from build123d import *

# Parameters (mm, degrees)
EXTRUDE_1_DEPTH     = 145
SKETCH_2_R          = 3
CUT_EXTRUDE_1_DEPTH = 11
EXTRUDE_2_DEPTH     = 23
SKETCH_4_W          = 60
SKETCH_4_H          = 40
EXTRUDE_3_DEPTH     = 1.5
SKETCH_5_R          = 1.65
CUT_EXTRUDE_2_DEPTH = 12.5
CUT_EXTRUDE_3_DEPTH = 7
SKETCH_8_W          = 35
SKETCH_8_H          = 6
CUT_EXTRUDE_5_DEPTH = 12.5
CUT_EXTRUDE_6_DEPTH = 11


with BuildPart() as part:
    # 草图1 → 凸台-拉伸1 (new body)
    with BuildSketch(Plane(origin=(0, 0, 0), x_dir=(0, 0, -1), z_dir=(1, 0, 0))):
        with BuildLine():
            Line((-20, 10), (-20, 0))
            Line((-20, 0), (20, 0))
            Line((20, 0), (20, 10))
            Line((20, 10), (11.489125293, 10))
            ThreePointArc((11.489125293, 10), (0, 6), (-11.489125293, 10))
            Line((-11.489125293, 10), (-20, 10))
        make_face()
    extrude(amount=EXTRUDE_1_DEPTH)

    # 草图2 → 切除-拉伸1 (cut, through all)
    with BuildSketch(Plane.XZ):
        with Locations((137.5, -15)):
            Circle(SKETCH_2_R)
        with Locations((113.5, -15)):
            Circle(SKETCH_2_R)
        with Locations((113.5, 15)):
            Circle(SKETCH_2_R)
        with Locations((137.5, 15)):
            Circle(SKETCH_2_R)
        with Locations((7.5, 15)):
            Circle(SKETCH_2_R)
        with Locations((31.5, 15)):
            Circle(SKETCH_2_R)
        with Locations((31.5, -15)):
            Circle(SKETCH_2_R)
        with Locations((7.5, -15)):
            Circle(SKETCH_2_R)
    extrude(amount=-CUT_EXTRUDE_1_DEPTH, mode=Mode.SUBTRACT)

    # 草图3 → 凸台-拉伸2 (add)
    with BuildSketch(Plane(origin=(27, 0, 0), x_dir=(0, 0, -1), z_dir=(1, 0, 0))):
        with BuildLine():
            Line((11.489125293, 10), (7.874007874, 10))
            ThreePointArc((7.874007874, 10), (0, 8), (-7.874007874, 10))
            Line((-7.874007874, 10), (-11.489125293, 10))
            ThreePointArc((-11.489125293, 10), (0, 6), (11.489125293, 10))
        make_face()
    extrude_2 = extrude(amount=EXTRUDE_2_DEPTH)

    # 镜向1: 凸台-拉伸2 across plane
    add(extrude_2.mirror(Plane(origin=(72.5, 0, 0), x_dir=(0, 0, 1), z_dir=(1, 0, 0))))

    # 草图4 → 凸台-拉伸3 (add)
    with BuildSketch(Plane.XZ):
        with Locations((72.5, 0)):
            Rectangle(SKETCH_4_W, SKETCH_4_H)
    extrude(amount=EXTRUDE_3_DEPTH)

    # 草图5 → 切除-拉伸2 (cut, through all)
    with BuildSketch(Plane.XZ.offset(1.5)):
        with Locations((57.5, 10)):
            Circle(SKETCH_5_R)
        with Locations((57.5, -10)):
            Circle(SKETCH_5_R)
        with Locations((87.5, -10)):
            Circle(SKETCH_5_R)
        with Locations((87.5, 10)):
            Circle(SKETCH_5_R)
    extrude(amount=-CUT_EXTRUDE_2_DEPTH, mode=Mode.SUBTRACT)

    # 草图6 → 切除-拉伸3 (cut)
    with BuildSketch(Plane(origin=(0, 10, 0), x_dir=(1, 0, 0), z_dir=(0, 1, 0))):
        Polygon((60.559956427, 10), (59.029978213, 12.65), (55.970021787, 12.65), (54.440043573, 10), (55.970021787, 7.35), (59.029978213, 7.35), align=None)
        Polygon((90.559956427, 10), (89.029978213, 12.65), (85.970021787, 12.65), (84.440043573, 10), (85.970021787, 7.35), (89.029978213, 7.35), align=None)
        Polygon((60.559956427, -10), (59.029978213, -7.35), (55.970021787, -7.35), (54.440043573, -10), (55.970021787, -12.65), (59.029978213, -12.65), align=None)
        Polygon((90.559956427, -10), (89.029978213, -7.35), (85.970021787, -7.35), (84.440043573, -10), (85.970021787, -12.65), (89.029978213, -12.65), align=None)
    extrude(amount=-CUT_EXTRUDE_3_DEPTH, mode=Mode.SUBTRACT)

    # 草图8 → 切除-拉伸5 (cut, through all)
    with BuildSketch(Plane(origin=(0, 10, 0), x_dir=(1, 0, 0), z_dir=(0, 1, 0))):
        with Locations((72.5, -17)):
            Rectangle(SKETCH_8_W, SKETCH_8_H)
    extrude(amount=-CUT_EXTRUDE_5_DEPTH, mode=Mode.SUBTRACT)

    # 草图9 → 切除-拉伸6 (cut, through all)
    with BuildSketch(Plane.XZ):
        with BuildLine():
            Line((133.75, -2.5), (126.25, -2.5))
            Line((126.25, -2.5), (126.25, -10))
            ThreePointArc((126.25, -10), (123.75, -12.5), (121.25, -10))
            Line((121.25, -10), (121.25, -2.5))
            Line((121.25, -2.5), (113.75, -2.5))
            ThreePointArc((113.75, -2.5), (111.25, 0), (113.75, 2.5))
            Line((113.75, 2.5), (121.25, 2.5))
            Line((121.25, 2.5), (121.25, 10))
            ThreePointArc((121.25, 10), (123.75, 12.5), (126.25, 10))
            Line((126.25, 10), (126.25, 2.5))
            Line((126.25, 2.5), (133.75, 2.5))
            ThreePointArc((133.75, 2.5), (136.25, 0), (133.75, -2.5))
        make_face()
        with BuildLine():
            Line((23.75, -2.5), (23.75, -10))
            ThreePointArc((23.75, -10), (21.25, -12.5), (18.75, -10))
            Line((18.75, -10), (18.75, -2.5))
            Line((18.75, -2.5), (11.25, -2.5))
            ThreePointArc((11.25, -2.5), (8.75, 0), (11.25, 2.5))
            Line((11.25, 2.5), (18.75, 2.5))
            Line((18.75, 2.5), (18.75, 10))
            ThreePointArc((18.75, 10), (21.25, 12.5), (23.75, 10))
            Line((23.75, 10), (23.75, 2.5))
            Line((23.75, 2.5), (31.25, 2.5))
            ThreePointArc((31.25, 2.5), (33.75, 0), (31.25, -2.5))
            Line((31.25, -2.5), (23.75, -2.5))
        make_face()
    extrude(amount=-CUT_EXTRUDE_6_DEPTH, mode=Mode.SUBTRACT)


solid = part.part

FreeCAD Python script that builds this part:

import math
import FreeCAD as App
import Part
import Sketcher
Q = App.Units.Quantity


def add_polygon(sketch, points):
    """Adds a closed chain of lines whose ends are joined by coincident constraints."""
    first, n = sketch.GeometryCount, len(points)
    for a, b in zip(points, points[1:] + points[:1]):
        sketch.addGeometry(Part.LineSegment(App.Vector(*a, 0), App.Vector(*b, 0)), False)
    for i in range(n):
        sketch.addConstraint(Sketcher.Constraint("Coincident", first + i, 2, first + (i + 1) % n, 1))

doc = App.newDocument("Part")
body = doc.addObject("PartDesign::Body", "Body")

# Sketch on YZ plane
sketch1 = doc.addObject("Sketcher::SketchObject", "Sketch")
body.addObject(sketch1)
sketch1.AttachmentSupport = (doc.YZ_Plane, [""])
sketch1.MapMode = "FlatFace"
sketch1.addGeometry(Part.LineSegment(App.Vector(10, 20, 0), App.Vector(0, 20, 0)), False)
sketch1.addGeometry(Part.LineSegment(App.Vector(0, 20, 0), App.Vector(0, -20, 0)), False)
sketch1.addGeometry(Part.LineSegment(App.Vector(0, -20, 0), App.Vector(10, -20, 0)), False)
sketch1.addGeometry(Part.LineSegment(App.Vector(10, -20, 0), App.Vector(10, -11.489125, 0)), False)
sketch1.addGeometry(Part.ArcOfCircle(Part.Circle(App.Vector(24.5, 0, 0), App.Vector(0, 0, 1), 18.5), math.radians(141.608333), math.radians(218.391667)), False)
sketch1.addGeometry(Part.LineSegment(App.Vector(10, 11.489125, 0), App.Vector(10, 20, 0)), False)
sketch1.addConstraint(Sketcher.Constraint("Coincident", 0, 2, 1, 1))
sketch1.addConstraint(Sketcher.Constraint("Coincident", 1, 2, 2, 1))
sketch1.addConstraint(Sketcher.Constraint("Coincident", 2, 2, 3, 1))
sketch1.addConstraint(Sketcher.Constraint("Coincident", 3, 2, 4, 2))
sketch1.addConstraint(Sketcher.Constraint("Coincident", 4, 1, 5, 1))
sketch1.addConstraint(Sketcher.Constraint("Coincident", 5, 2, 0, 1))
sketch1.addConstraint(Sketcher.Constraint("Horizontal", 0))
sketch1.addConstraint(Sketcher.Constraint("Vertical", 1))
sketch1.addConstraint(Sketcher.Constraint("Horizontal", 2))
sketch1.addConstraint(Sketcher.Constraint("Vertical", 3))
sketch1.addConstraint(Sketcher.Constraint("Vertical", 5))
sketch1.addConstraint(Sketcher.Constraint("Symmetric", 0, 2, 1, 2, -1, 1))
sketch1.addConstraint(Sketcher.Constraint("Symmetric", 3, 2, 4, 1, -1))
sketch1.addConstraint(Sketcher.Constraint("Radius", 4, Q("18.5 mm")))
sketch1.addConstraint(Sketcher.Constraint("DistanceX", 0, 2, 0, 1, Q("10 mm")))
sketch1.addConstraint(Sketcher.Constraint("DistanceY", 1, 2, 1, 1, Q("40 mm")))
sketch1.addConstraint(Sketcher.Constraint("DistanceX", -1, 1, 4, 3, Q("24.5 mm")))
pad1 = doc.addObject("PartDesign::Pad", "Pad")
body.addObject(pad1)
pad1.Profile = sketch1
pad1.Length = 145

# Sketch on XZ plane
sketch2 = doc.addObject("Sketcher::SketchObject", "Sketch001")
body.addObject(sketch2)
sketch2.AttachmentSupport = (doc.XZ_Plane, [""])
sketch2.MapMode = "FlatFace"
sketch2.addGeometry(Part.Circle(App.Vector(137.5, -15, 0), App.Vector(0, 0, 1), 3), False)
sketch2.addGeometry(Part.Circle(App.Vector(113.5, -15, 0), App.Vector(0, 0, 1), 3), False)
sketch2.addGeometry(Part.Circle(App.Vector(113.5, 15, 0), App.Vector(0, 0, 1), 3), False)
sketch2.addGeometry(Part.Circle(App.Vector(137.5, 15, 0), App.Vector(0, 0, 1), 3), False)
sketch2.addGeometry(Part.Circle(App.Vector(7.5, 15, 0), App.Vector(0, 0, 1), 3), False)
sketch2.addGeometry(Part.Circle(App.Vector(31.5, 15, 0), App.Vector(0, 0, 1), 3), False)
sketch2.addGeometry(Part.Circle(App.Vector(31.5, -15, 0), App.Vector(0, 0, 1), 3), False)
sketch2.addGeometry(Part.Circle(App.Vector(7.5, -15, 0), App.Vector(0, 0, 1), 3), False)
sketch2.addConstraint(Sketcher.Constraint("Equal", 0, 1))
sketch2.addConstraint(Sketcher.Constraint("Equal", 1, 2))
sketch2.addConstraint(Sketcher.Constraint("Equal", 2, 3))
sketch2.addConstraint(Sketcher.Constraint("Equal", 3, 4))
sketch2.addConstraint(Sketcher.Constraint("Equal", 4, 5))
sketch2.addConstraint(Sketcher.Constraint("Equal", 5, 6))
sketch2.addConstraint(Sketcher.Constraint("Equal", 6, 7))
sketch2.addConstraint(Sketcher.Constraint("Symmetric", 1, 3, 2, 3, -1))
sketch2.addConstraint(Sketcher.Constraint("Symmetric", 0, 3, 3, 3, -1))
sketch2.addConstraint(Sketcher.Constraint("Symmetric", 5, 3, 6, 3, -1))
sketch2.addConstraint(Sketcher.Constraint("Symmetric", 4, 3, 7, 3, -1))
sketch2.addConstraint(Sketcher.Constraint("Horizontal", 0, 3, 1, 3))
sketch2.addConstraint(Sketcher.Constraint("Horizontal", 3, 3, 4, 3))
sketch2.addConstraint(Sketcher.Constraint("Horizontal", 4, 3, 5, 3))
sketch2.addConstraint(Sketcher.Constraint("Diameter", 0, Q("6 mm")))
sketch2.addConstraint(Sketcher.Constraint("DistanceY", 0, 3, -1, 1, Q("15 mm")))
sketch2.addConstraint(Sketcher.Constraint("DistanceX", 1, 3, 0, 3, Q("24 mm")))
sketch2.addConstraint(Sketcher.Constraint("DistanceX", 4, 3, 2, 3, Q("106 mm")))
sketch2.addConstraint(Sketcher.Constraint("DistanceX", 4, 3, 5, 3, Q("24 mm")))
sketch2.addConstraint(Sketcher.Constraint("DistanceX", -1, 1, 0, 3, Q("137.5 mm")))
pocket1 = doc.addObject("PartDesign::Pocket", "Pocket")
body.addObject(pocket1)
pocket1.Profile = sketch2
pocket1.Type = "ThroughAll"

# Sketch on YZ plane
sketch3 = doc.addObject("Sketcher::SketchObject", "Sketch002")
body.addObject(sketch3)
sketch3.AttachmentSupport = (doc.YZ_Plane, [""])
sketch3.MapMode = "FlatFace"
sketch3.AttachmentOffset = App.Placement(App.Vector(0, 0, 27), App.Rotation())
sketch3.addGeometry(Part.LineSegment(App.Vector(10, -11.489125, 0), App.Vector(10, -7.874008, 0)), False)
sketch3.addGeometry(Part.ArcOfCircle(Part.Circle(App.Vector(24.5, 0, 0), App.Vector(0, 0, 1), 16.5), math.radians(151.49649), math.radians(208.50351)), False)
sketch3.addGeometry(Part.LineSegment(App.Vector(10, 7.874008, 0), App.Vector(10, 11.489125, 0)), False)
sketch3.addGeometry(Part.ArcOfCircle(Part.Circle(App.Vector(24.5, 0, 0), App.Vector(0, 0, 1), 18.5), math.radians(141.608333), math.radians(218.391667)), False)
sketch3.addConstraint(Sketcher.Constraint("Coincident", 0, 2, 1, 2))
sketch3.addConstraint(Sketcher.Constraint("Coincident", 1, 1, 2, 1))
sketch3.addConstraint(Sketcher.Constraint("Coincident", 2, 2, 3, 1))
sketch3.addConstraint(Sketcher.Constraint("Coincident", 3, 2, 0, 1))
sketch3.addConstraint(Sketcher.Constraint("Vertical", 0))
sketch3.addConstraint(Sketcher.Constraint("Vertical", 2))
sketch3.addConstraint(Sketcher.Constraint("Coincident", 3, 3, 1, 3))
sketch3.addConstraint(Sketcher.Constraint("Symmetric", 0, 2, 1, 1, -1))
sketch3.addConstraint(Sketcher.Constraint("Radius", 1, Q("16.5 mm")))
sketch3.addConstraint(Sketcher.Constraint("Radius", 3, Q("18.5 mm")))
sketch3.addConstraint(Sketcher.Constraint("DistanceX", -1, 1, 0, 2, Q("10 mm")))
sketch3.addConstraint(Sketcher.Constraint("DistanceX", -1, 1, 1, 3, Q("24.5 mm")))
pad2 = doc.addObject("PartDesign::Pad", "Pad001")
body.addObject(pad2)
pad2.Profile = sketch3
pad2.Length = 23
doc.recompute()

datumplane = doc.addObject("PartDesign::Plane", "DatumPlane")
body.addObject(datumplane)
datumplane.AttachmentSupport = (doc.YZ_Plane, [""])
datumplane.MapMode = "FlatFace"
datumplane.AttachmentOffset = App.Placement(App.Vector(0, 0, 72.5), App.Rotation())
mirrored = doc.addObject("PartDesign::Mirrored", "Mirrored")
body.addObject(mirrored)
mirrored.Originals = [pad2]
mirrored.MirrorPlane = (datumplane, [""])
body.Tip = mirrored

# Sketch on XZ plane
sketch4 = doc.addObject("Sketcher::SketchObject", "Sketch003")
body.addObject(sketch4)
sketch4.AttachmentSupport = (doc.XZ_Plane, [""])
sketch4.MapMode = "FlatFace"
add_polygon(sketch4, [(42.5, 20), (42.5, -20), (102.5, -20), (102.5, 20)])  # lines 0-3
sketch4.addConstraint(Sketcher.Constraint("Vertical", 0))
sketch4.addConstraint(Sketcher.Constraint("Horizontal", 1))
sketch4.addConstraint(Sketcher.Constraint("Vertical", 2))
sketch4.addConstraint(Sketcher.Constraint("Horizontal", 3))
sketch4.addConstraint(Sketcher.Constraint("DistanceX", 1, 1, 1, 2, Q("60 mm")))
sketch4.addConstraint(Sketcher.Constraint("DistanceY", 0, 2, 0, 1, Q("40 mm")))
sketch4.addConstraint(Sketcher.Constraint("DistanceY", 0, 2, -1, 1, Q("20 mm")))
sketch4.addConstraint(Sketcher.Constraint("DistanceX", -1, 1, 0, 2, Q("42.5 mm")))
pad3 = doc.addObject("PartDesign::Pad", "Pad002")
body.addObject(pad3)
pad3.Profile = sketch4
pad3.Length = 1.5

# Sketch on XZ plane
sketch5 = doc.addObject("Sketcher::SketchObject", "Sketch004")
body.addObject(sketch5)
sketch5.AttachmentSupport = (doc.XZ_Plane, [""])
sketch5.MapMode = "FlatFace"
sketch5.AttachmentOffset = App.Placement(App.Vector(0, 0, 1.5), App.Rotation())
sketch5.addGeometry(Part.Circle(App.Vector(57.5, 10, 0), App.Vector(0, 0, 1), 1.65), False)
sketch5.addGeometry(Part.Circle(App.Vector(57.5, -10, 0), App.Vector(0, 0, 1), 1.65), False)
sketch5.addGeometry(Part.Circle(App.Vector(87.5, -10, 0), App.Vector(0, 0, 1), 1.65), False)
sketch5.addGeometry(Part.Circle(App.Vector(87.5, 10, 0), App.Vector(0, 0, 1), 1.65), False)
sketch5.addConstraint(Sketcher.Constraint("Equal", 0, 1))
sketch5.addConstraint(Sketcher.Constraint("Equal", 1, 2))
sketch5.addConstraint(Sketcher.Constraint("Equal", 2, 3))
sketch5.addConstraint(Sketcher.Constraint("Symmetric", 0, 3, 1, 3, -1))
sketch5.addConstraint(Sketcher.Constraint("Symmetric", 2, 3, 3, 3, -1))
sketch5.addConstraint(Sketcher.Constraint("Horizontal", 1, 3, 2, 3))
sketch5.addConstraint(Sketcher.Constraint("Diameter", 0, Q("3.3 mm")))
sketch5.addConstraint(Sketcher.Constraint("DistanceY", -1, 1, 0, 3, Q("10 mm")))
sketch5.addConstraint(Sketcher.Constraint("DistanceX", 1, 3, 2, 3, Q("30 mm")))
sketch5.addConstraint(Sketcher.Constraint("DistanceX", -1, 1, 0, 3, Q("57.5 mm")))
pocket2 = doc.addObject("PartDesign::Pocket", "Pocket001")
body.addObject(pocket2)
pocket2.Profile = sketch5
pocket2.Type = "ThroughAll"

# Sketch on XZ plane
sketch6 = doc.addObject("Sketcher::SketchObject", "Sketch005")
body.addObject(sketch6)
sketch6.AttachmentSupport = (doc.XZ_Plane, [""])
sketch6.MapMode = "FlatFace"
sketch6.AttachmentOffset = App.Placement(App.Vector(0, 0, -10), App.Rotation())
add_polygon(sketch6, [(60.559956, -10), (59.029978, -12.65), (55.970022, -12.65), (54.440044, -10), (55.970022, -7.35), (59.029978, -7.35)])  # lines 0-5
add_polygon(sketch6, [(90.559956, -10), (89.029978, -12.65), (85.970022, -12.65), (84.440044, -10), (85.970022, -7.35), (89.029978, -7.35)])  # lines 6-11
add_polygon(sketch6, [(60.559956, 10), (59.029978, 7.35), (55.970022, 7.35), (54.440044, 10), (55.970022, 12.65), (59.029978, 12.65)])  # lines 12-17
add_polygon(sketch6, [(90.559956, 10), (89.029978, 7.35), (85.970022, 7.35), (84.440044, 10), (85.970022, 12.65), (89.029978, 12.65)])  # lines 18-23
sketch6.addConstraint(Sketcher.Constraint("Horizontal", 1))
sketch6.addConstraint(Sketcher.Constraint("Horizontal", 4))
sketch6.addConstraint(Sketcher.Constraint("Horizontal", 7))
sketch6.addConstraint(Sketcher.Constraint("Horizontal", 10))
sketch6.addConstraint(Sketcher.Constraint("Horizontal", 13))
sketch6.addConstraint(Sketcher.Constraint("Horizontal", 16))
sketch6.addConstraint(Sketcher.Constraint("Horizontal", 19))
sketch6.addConstraint(Sketcher.Constraint("Horizontal", 22))
sketch6.addConstraint(Sketcher.Constraint("Symmetric", 4, 2, 12, 2, -1))
sketch6.addConstraint(Sketcher.Constraint("Symmetric", 2, 2, 14, 2, -1))
sketch6.addConstraint(Sketcher.Constraint("Symmetric", 1, 2, 15, 2, -1))
sketch6.addConstraint(Sketcher.Constraint("Symmetric", 5, 2, 17, 2, -1))
sketch6.addConstraint(Sketcher.Constraint("Symmetric", 10, 2, 18, 2, -1))
sketch6.addConstraint(Sketcher.Constraint("Symmetric", 8, 2, 20, 2, -1))
sketch6.addConstraint(Sketcher.Constraint("Symmetric", 7, 2, 21, 2, -1))
sketch6.addConstraint(Sketcher.Constraint("Symmetric", 11, 2, 23, 2, -1))
sketch6.addConstraint(Sketcher.Constraint("Parallel", 0, 3))
sketch6.addConstraint(Sketcher.Constraint("Parallel", 2, 5))
sketch6.addConstraint(Sketcher.Constraint("Parallel", 3, 6))
sketch6.addConstraint(Sketcher.Constraint("Parallel", 5, 8))
sketch6.addConstraint(Sketcher.Constraint("Parallel", 6, 9))
sketch6.addConstraint(Sketcher.Constraint("Parallel", 8, 11))
sketch6.addConstraint(Sketcher.Constraint("Parallel", 9, 12))
sketch6.addConstraint(Sketcher.Constraint("Parallel", 11, 14))
sketch6.addConstraint(Sketcher.Constraint("Parallel", 14, 17))
sketch6.addConstraint(Sketcher.Constraint("Parallel", 17, 20))
sketch6.addConstraint(Sketcher.Constraint("Parallel", 20, 23))
sketch6.addConstraint(Sketcher.Constraint("Horizontal", 2, 2, 5, 2))
sketch6.addConstraint(Sketcher.Constraint("Horizontal", 1, 2, 6, 2))
sketch6.addConstraint(Sketcher.Constraint("Horizontal", 5, 2, 8, 2))
sketch6.addConstraint(Sketcher.Constraint("Horizontal", 4, 2, 9, 2))
sketch6.addConstraint(Sketcher.Constraint("Horizontal", 8, 2, 11, 2))
sketch6.addConstraint(Sketcher.Constraint("Vertical", 1, 2, 3, 2))
sketch6.addConstraint(Sketcher.Constraint("Equal", 4, 7))
sketch6.addConstraint(Sketcher.Constraint("Angle", 0, Q("-120 deg")))
sketch6.addConstraint(Sketcher.Constraint("DistanceY", 2, 2, -1, 1, Q("10 mm")))
sketch6.addConstraint(Sketcher.Constraint("DistanceX", 0, 2, 6, 2, Q("30 mm")))
sketch6.addConstraint(Sketcher.Constraint("DistanceY", 1, 2, 3, 2, Q("5.3 mm")))
sketch6.addConstraint(Sketcher.Constraint("DistanceX", 1, 2, 1, 1, Q("3.059956 mm")))
sketch6.addConstraint(Sketcher.Constraint("DistanceX", -1, 1, 0, 2, Q("59.029978 mm")))
pocket3 = doc.addObject("PartDesign::Pocket", "Pocket002")
body.addObject(pocket3)
pocket3.Profile = sketch6
pocket3.Length = 7
pocket3.Reversed = True

# Sketch on XZ plane
sketch7 = doc.addObject("Sketcher::SketchObject", "Sketch006")
body.addObject(sketch7)
sketch7.AttachmentSupport = (doc.XZ_Plane, [""])
sketch7.MapMode = "FlatFace"
sketch7.AttachmentOffset = App.Placement(App.Vector(0, 0, -10), App.Rotation())
add_polygon(sketch7, [(55, 14), (55, 20), (90, 20), (90, 14)])  # lines 0-3
sketch7.addConstraint(Sketcher.Constraint("Vertical", 0))
sketch7.addConstraint(Sketcher.Constraint("Horizontal", 1))
sketch7.addConstraint(Sketcher.Constraint("Vertical", 2))
sketch7.addConstraint(Sketcher.Constraint("Horizontal", 3))
sketch7.addConstraint(Sketcher.Constraint("DistanceX", 1, 1, 1, 2, Q("35 mm")))
sketch7.addConstraint(Sketcher.Constraint("DistanceY", 0, 1, 0, 2, Q("6 mm")))
sketch7.addConstraint(Sketcher.Constraint("DistanceX", -1, 1, 0, 2, Q("55 mm")))
sketch7.addConstraint(Sketcher.Constraint("DistanceY", -1, 1, 0, 2, Q("20 mm")))
pocket4 = doc.addObject("PartDesign::Pocket", "Pocket003")
body.addObject(pocket4)
pocket4.Profile = sketch7
pocket4.Type = "ThroughAll"
pocket4.Reversed = True

# Sketch on XZ plane
sketch8 = doc.addObject("Sketcher::SketchObject", "Sketch007")
body.addObject(sketch8)
sketch8.AttachmentSupport = (doc.XZ_Plane, [""])
sketch8.MapMode = "FlatFace"
sketch8.addGeometry(Part.LineSegment(App.Vector(126.25, -2.5, 0), App.Vector(133.75, -2.5, 0)), False)
sketch8.addGeometry(Part.ArcOfCircle(Part.Circle(App.Vector(133.75, 0, 0), App.Vector(0, 0, 1), 2.5), math.radians(-90), math.radians(90)), False)
sketch8.addGeometry(Part.LineSegment(App.Vector(133.75, 2.5, 0), App.Vector(126.25, 2.5, 0)), False)
sketch8.addGeometry(Part.LineSegment(App.Vector(126.25, 2.5, 0), App.Vector(126.25, 10, 0)), False)
sketch8.addGeometry(Part.ArcOfCircle(Part.Circle(App.Vector(123.75, 10, 0), App.Vector(0, 0, 1), 2.5), math.radians(0), math.radians(180)), False)
sketch8.addGeometry(Part.LineSegment(App.Vector(121.25, 10, 0), App.Vector(121.25, 2.5, 0)), False)
sketch8.addGeometry(Part.LineSegment(App.Vector(121.25, 2.5, 0), App.Vector(113.75, 2.5, 0)), False)
sketch8.addGeometry(Part.ArcOfCircle(Part.Circle(App.Vector(113.75, 0, 0), App.Vector(0, 0, 1), 2.5), math.radians(90), math.radians(270)), False)
sketch8.addGeometry(Part.LineSegment(App.Vector(113.75, -2.5, 0), App.Vector(121.25, -2.5, 0)), False)
sketch8.addGeometry(Part.LineSegment(App.Vector(121.25, -2.5, 0), App.Vector(121.25, -10, 0)), False)
sketch8.addGeometry(Part.ArcOfCircle(Part.Circle(App.Vector(123.75, -10, 0), App.Vector(0, 0, 1), 2.5), math.radians(180), math.radians(360)), False)
sketch8.addGeometry(Part.LineSegment(App.Vector(126.25, -10, 0), App.Vector(126.25, -2.5, 0)), False)
sketch8.addGeometry(Part.LineSegment(App.Vector(23.75, -10, 0), App.Vector(23.75, -2.5, 0)), False)
sketch8.addGeometry(Part.LineSegment(App.Vector(23.75, -2.5, 0), App.Vector(31.25, -2.5, 0)), False)
sketch8.addGeometry(Part.ArcOfCircle(Part.Circle(App.Vector(31.25, 0, 0), App.Vector(0, 0, 1), 2.5), math.radians(-90), math.radians(90)), False)
sketch8.addGeometry(Part.LineSegment(App.Vector(31.25, 2.5, 0), App.Vector(23.75, 2.5, 0)), False)
sketch8.addGeometry(Part.LineSegment(App.Vector(23.75, 2.5, 0), App.Vector(23.75, 10, 0)), False)
sketch8.addGeometry(Part.ArcOfCircle(Part.Circle(App.Vector(21.25, 10, 0), App.Vector(0, 0, 1), 2.5), math.radians(0), math.radians(180)), False)
sketch8.addGeometry(Part.LineSegment(App.Vector(18.75, 10, 0), App.Vector(18.75, 2.5, 0)), False)
sketch8.addGeometry(Part.LineSegment(App.Vector(18.75, 2.5, 0), App.Vector(11.25, 2.5, 0)), False)
sketch8.addGeometry(Part.ArcOfCircle(Part.Circle(App.Vector(11.25, 0, 0), App.Vector(0, 0, 1), 2.5), math.radians(90), math.radians(270)), False)
sketch8.addGeometry(Part.LineSegment(App.Vector(11.25, -2.5, 0), App.Vector(18.75, -2.5, 0)), False)
sketch8.addGeometry(Part.LineSegment(App.Vector(18.75, -2.5, 0), App.Vector(18.75, -10, 0)), False)
sketch8.addGeometry(Part.ArcOfCircle(Part.Circle(App.Vector(21.25, -10, 0), App.Vector(0, 0, 1), 2.5), math.radians(180), math.radians(360)), False)
sketch8.addConstraint(Sketcher.Constraint("Tangent", 0, 2, 1, 1))
sketch8.addConstraint(Sketcher.Constraint("Tangent", 1, 2, 2, 1))
sketch8.addConstraint(Sketcher.Constraint("Coincident", 2, 2, 3, 1))
sketch8.addConstraint(Sketcher.Constraint("Tangent", 3, 2, 4, 1))
sketch8.addConstraint(Sketcher.Constraint("Tangent", 4, 2, 5, 1))
sketch8.addConstraint(Sketcher.Constraint("Coincident", 5, 2, 6, 1))
sketch8.addConstraint(Sketcher.Constraint("Tangent", 6, 2, 7, 1))
sketch8.addConstraint(Sketcher.Constraint("Tangent", 7, 2, 8, 1))
sketch8.addConstraint(Sketcher.Constraint("Coincident", 8, 2, 9, 1))
sketch8.addConstraint(Sketcher.Constraint("Tangent", 9, 2, 10, 1))
sketch8.addConstraint(Sketcher.Constraint("Tangent", 10, 2, 11, 1))
sketch8.addConstraint(Sketcher.Constraint("Coincident", 11, 2, 0, 1))
sketch8.addConstraint(Sketcher.Constraint("Coincident", 12, 2, 13, 1))
sketch8.addConstraint(Sketcher.Constraint("Tangent", 13, 2, 14, 1))
sketch8.addConstraint(Sketcher.Constraint("Tangent", 14, 2, 15, 1))
sketch8.addConstraint(Sketcher.Constraint("Coincident", 15, 2, 16, 1))
sketch8.addConstraint(Sketcher.Constraint("Tangent", 16, 2, 17, 1))
sketch8.addConstraint(Sketcher.Constraint("Tangent", 17, 2, 18, 1))
sketch8.addConstraint(Sketcher.Constraint("Coincident", 18, 2, 19, 1))
sketch8.addConstraint(Sketcher.Constraint("Tangent", 19, 2, 20, 1))
sketch8.addConstraint(Sketcher.Constraint("Tangent", 20, 2, 21, 1))
sketch8.addConstraint(Sketcher.Constraint("Coincident", 21, 2, 22, 1))
sketch8.addConstraint(Sketcher.Constraint("Tangent", 22, 2, 23, 1))
sketch8.addConstraint(Sketcher.Constraint("Tangent", 23, 2, 12, 1))
sketch8.addConstraint(Sketcher.Constraint("Horizontal", 0))
sketch8.addConstraint(Sketcher.Constraint("Horizontal", 2))
sketch8.addConstraint(Sketcher.Constraint("Vertical", 3))
sketch8.addConstraint(Sketcher.Constraint("Vertical", 5))
sketch8.addConstraint(Sketcher.Constraint("Horizontal", 6))
sketch8.addConstraint(Sketcher.Constraint("Horizontal", 8))
sketch8.addConstraint(Sketcher.Constraint("Vertical", 9))
sketch8.addConstraint(Sketcher.Constraint("Vertical", 11))
sketch8.addConstraint(Sketcher.Constraint("Vertical", 12))
sketch8.addConstraint(Sketcher.Constraint("Horizontal", 13))
sketch8.addConstraint(Sketcher.Constraint("Horizontal", 15))
sketch8.addConstraint(Sketcher.Constraint("Vertical", 16))
sketch8.addConstraint(Sketcher.Constraint("Vertical", 18))
sketch8.addConstraint(Sketcher.Constraint("Horizontal", 19))
sketch8.addConstraint(Sketcher.Constraint("Horizontal", 21))
sketch8.addConstraint(Sketcher.Constraint("Vertical", 22))
sketch8.addConstraint(Sketcher.Constraint("Equal", 1, 4))
sketch8.addConstraint(Sketcher.Constraint("Equal", 4, 7))
sketch8.addConstraint(Sketcher.Constraint("Equal", 7, 10))
sketch8.addConstraint(Sketcher.Constraint("Equal", 10, 14))
sketch8.addConstraint(Sketcher.Constraint("Equal", 14, 17))
sketch8.addConstraint(Sketcher.Constraint("Equal", 17, 20))
sketch8.addConstraint(Sketcher.Constraint("Equal", 20, 23))
sketch8.addConstraint(Sketcher.Constraint("Symmetric", 4, 3, 10, 3, -1))
sketch8.addConstraint(Sketcher.Constraint("Symmetric", 17, 3, 23, 3, -1))
sketch8.addConstraint(Sketcher.Constraint("PointOnObject", 1, 3, -1))
sketch8.addConstraint(Sketcher.Constraint("PointOnObject", 7, 3, -1))
sketch8.addConstraint(Sketcher.Constraint("PointOnObject", 14, 3, -1))
sketch8.addConstraint(Sketcher.Constraint("PointOnObject", 20, 3, -1))
sketch8.addConstraint(Sketcher.Constraint("Horizontal", 4, 3, 17, 3))
sketch8.addConstraint(Sketcher.Constraint("Equal", 2, 6))
sketch8.addConstraint(Sketcher.Constraint("Equal", 8, 13))
sketch8.addConstraint(Sketcher.Constraint("Equal", 15, 19))
sketch8.addConstraint(Sketcher.Constraint("Equal", 21, 3))
sketch8.addConstraint(Sketcher.Constraint("Radius", 1, Q("2.5 mm")))
sketch8.addConstraint(Sketcher.Constraint("DistanceX", 0, 1, 0, 2, Q("7.5 mm")))
sketch8.addConstraint(Sketcher.Constraint("DistanceX", 12, 2, 7, 2, Q("90 mm")))
sketch8.addConstraint(Sketcher.Constraint("DistanceX", -1, 1, 1, 3, Q("133.75 mm")))
pocket5 = doc.addObject("PartDesign::Pocket", "Pocket004")
body.addObject(pocket5)
pocket5.Profile = sketch8
pocket5.Type = "ThroughAll"

doc.recompute()
